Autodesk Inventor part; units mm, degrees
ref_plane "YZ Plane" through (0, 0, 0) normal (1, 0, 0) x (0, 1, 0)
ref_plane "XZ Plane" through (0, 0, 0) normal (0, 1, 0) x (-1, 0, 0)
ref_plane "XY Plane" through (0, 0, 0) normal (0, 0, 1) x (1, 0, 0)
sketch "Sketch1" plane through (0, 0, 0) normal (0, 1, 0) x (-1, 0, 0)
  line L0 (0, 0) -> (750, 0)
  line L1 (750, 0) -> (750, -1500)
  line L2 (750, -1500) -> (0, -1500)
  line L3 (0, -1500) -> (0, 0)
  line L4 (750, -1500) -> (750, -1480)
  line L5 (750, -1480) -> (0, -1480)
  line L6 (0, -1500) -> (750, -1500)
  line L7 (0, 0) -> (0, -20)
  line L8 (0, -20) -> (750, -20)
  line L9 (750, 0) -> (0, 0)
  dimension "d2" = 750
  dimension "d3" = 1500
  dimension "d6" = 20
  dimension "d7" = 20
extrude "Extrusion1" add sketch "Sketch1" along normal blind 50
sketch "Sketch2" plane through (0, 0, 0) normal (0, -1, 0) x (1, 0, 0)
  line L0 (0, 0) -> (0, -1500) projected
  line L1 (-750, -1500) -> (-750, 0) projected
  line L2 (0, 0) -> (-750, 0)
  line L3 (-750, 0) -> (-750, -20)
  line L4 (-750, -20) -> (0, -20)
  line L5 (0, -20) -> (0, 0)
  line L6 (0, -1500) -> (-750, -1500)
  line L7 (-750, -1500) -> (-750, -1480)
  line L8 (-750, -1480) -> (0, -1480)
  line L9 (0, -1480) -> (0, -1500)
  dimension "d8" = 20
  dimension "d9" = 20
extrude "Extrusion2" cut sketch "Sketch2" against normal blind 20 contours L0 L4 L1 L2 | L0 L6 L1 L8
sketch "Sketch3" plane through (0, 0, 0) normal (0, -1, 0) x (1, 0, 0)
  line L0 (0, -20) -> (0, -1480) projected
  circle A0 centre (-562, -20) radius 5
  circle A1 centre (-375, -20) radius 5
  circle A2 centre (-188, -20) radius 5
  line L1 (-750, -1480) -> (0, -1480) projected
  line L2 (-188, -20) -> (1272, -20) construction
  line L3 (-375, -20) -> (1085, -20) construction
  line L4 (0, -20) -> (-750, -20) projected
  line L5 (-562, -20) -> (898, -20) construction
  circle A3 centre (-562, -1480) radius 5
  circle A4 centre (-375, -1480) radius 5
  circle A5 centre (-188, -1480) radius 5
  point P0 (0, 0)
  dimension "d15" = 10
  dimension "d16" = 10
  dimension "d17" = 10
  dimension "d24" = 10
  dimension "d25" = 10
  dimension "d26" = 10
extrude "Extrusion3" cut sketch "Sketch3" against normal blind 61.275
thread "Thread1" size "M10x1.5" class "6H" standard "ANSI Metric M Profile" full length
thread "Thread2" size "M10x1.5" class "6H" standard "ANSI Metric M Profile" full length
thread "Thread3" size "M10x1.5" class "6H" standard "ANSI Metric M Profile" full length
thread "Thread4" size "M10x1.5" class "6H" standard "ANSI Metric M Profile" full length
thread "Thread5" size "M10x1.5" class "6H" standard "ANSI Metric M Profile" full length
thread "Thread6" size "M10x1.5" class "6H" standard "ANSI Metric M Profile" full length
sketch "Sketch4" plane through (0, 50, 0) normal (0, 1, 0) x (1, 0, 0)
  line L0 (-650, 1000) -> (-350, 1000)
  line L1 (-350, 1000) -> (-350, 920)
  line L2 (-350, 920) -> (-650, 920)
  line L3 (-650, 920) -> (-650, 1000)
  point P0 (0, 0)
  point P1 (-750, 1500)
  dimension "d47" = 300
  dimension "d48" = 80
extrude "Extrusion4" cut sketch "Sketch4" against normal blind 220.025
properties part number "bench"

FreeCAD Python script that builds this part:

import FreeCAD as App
import Part
import Sketcher
Q = App.Units.Quantity


def add_polygon(sketch, points):
    """Adds a closed chain of lines whose ends are joined by coincident constraints."""
    first, n = sketch.GeometryCount, len(points)
    for a, b in zip(points, points[1:] + points[:1]):
        sketch.addGeometry(Part.LineSegment(App.Vector(*a, 0), App.Vector(*b, 0)), False)
    for i in range(n):
        sketch.addConstraint(Sketcher.Constraint("Coincident", first + i, 2, first + (i + 1) % n, 1))

doc = App.newDocument("Part")
body = doc.addObject("PartDesign::Body", "Body")

# Sketch on XZ plane
sketch1 = doc.addObject("Sketcher::SketchObject", "Sketch")
body.addObject(sketch1)
sketch1.AttachmentSupport = (doc.XZ_Plane, [""])
sketch1.MapMode = "FlatFace"
add_polygon(sketch1, [(-750, 0), (0, 0), (0, -1500), (-750, -1500)])  # lines 0-3
sketch1.addConstraint(Sketcher.Constraint("Horizontal", 0))
sketch1.addConstraint(Sketcher.Constraint("Vertical", 1))
sketch1.addConstraint(Sketcher.Constraint("Horizontal", 2))
sketch1.addConstraint(Sketcher.Constraint("Vertical", 3))
sketch1.addConstraint(Sketcher.Constraint("Coincident", 0, 2, -1, 1))
sketch1.addConstraint(Sketcher.Constraint("DistanceX", 0, 1, 0, 2, Q("750 mm")))
sketch1.addConstraint(Sketcher.Constraint("DistanceY", 1, 2, 1, 1, Q("1500 mm")))
pad1 = doc.addObject("PartDesign::Pad", "Pad")
body.addObject(pad1)
pad1.Profile = sketch1
pad1.Length = 50
pad1.Reversed = True

# Sketch on XZ plane
sketch2 = doc.addObject("Sketcher::SketchObject", "Sketch001")
body.addObject(sketch2)
sketch2.AttachmentSupport = (doc.XZ_Plane, [""])
sketch2.MapMode = "FlatFace"
add_polygon(sketch2, [(0, -20), (0, 0), (-750, 0), (-750, -20)])  # lines 0-3
add_polygon(sketch2, [(0, -1500), (0, -1480), (-750, -1480), (-750, -1500)])  # lines 4-7
sketch2.addConstraint(Sketcher.Constraint("Vertical", 0))
sketch2.addConstraint(Sketcher.Constraint("Horizontal", 1))
sketch2.addConstraint(Sketcher.Constraint("Vertical", 2))
sketch2.addConstraint(Sketcher.Constraint("Horizontal", 3))
sketch2.addConstraint(Sketcher.Constraint("Vertical", 4))
sketch2.addConstraint(Sketcher.Constraint("Horizontal", 5))
sketch2.addConstraint(Sketcher.Constraint("Vertical", 6))
sketch2.addConstraint(Sketcher.Constraint("Horizontal", 7))
sketch2.addConstraint(Sketcher.Constraint("Coincident", 0, 2, -1, 1))
sketch2.addConstraint(Sketcher.Constraint("PointOnObject", 4, 2, -2))
sketch2.addConstraint(Sketcher.Constraint("Vertical", 2, 2, 5, 2))
sketch2.addConstraint(Sketcher.Constraint("Equal", 2, 4))
sketch2.addConstraint(Sketcher.Constraint("DistanceY", 0, 1, 0, 2, Q("20 mm")))
sketch2.addConstraint(Sketcher.Constraint("DistanceX", 1, 2, 1, 1, Q("750 mm")))
sketch2.addConstraint(Sketcher.Constraint("DistanceY", 4, 2, -1, 1, Q("1480 mm")))
pocket1 = doc.addObject("PartDesign::Pocket", "Pocket")
body.addObject(pocket1)
pocket1.Profile = sketch2
pocket1.Length = 20

# Sketch on XZ plane
sketch3 = doc.addObject("Sketcher::SketchObject", "Sketch002")
body.addObject(sketch3)
sketch3.AttachmentSupport = (doc.XZ_Plane, [""])
sketch3.MapMode = "FlatFace"
sketch3.addGeometry(Part.Circle(App.Vector(-562, -1480, 0), App.Vector(0, 0, 1), 5), False)
sketch3.addGeometry(Part.Circle(App.Vector(-375, -1480, 0), App.Vector(0, 0, 1), 5), False)
sketch3.addGeometry(Part.Circle(App.Vector(-188, -1480, 0), App.Vector(0, 0, 1), 5), False)
sketch3.addGeometry(Part.Circle(App.Vector(-562, -20, 0), App.Vector(0, 0, 1), 5), False)
sketch3.addGeometry(Part.Circle(App.Vector(-375, -20, 0), App.Vector(0, 0, 1), 5), False)
sketch3.addGeometry(Part.Circle(App.Vector(-188, -20, 0), App.Vector(0, 0, 1), 5), False)
sketch3.addConstraint(Sketcher.Constraint("Equal", 0, 1))
sketch3.addConstraint(Sketcher.Constraint("Equal", 1, 2))
sketch3.addConstraint(Sketcher.Constraint("Equal", 2, 3))
sketch3.addConstraint(Sketcher.Constraint("Equal", 3, 4))
sketch3.addConstraint(Sketcher.Constraint("Equal", 4, 5))
sketch3.addConstraint(Sketcher.Constraint("Horizontal", 0, 3, 1, 3))
sketch3.addConstraint(Sketcher.Constraint("Horizontal", 1, 3, 2, 3))
sketch3.addConstraint(Sketcher.Constraint("Horizontal", 3, 3, 4, 3))
sketch3.addConstraint(Sketcher.Constraint("Horizontal", 4, 3, 5, 3))
sketch3.addConstraint(Sketcher.Constraint("Vertical", 0, 3, 3, 3))
sketch3.addConstraint(Sketcher.Constraint("Vertical", 1, 3, 4, 3))
sketch3.addConstraint(Sketcher.Constraint("Vertical", 2, 3, 5, 3))
sketch3.addConstraint(Sketcher.Constraint("Diameter", 0, Q("10 mm")))
sketch3.addConstraint(Sketcher.Constraint("DistanceX", 0, 3, -1, 1, Q("562 mm")))
sketch3.addConstraint(Sketcher.Constraint("DistanceY", 0, 3, -1, 1, Q("1480 mm")))
sketch3.addConstraint(Sketcher.Constraint("DistanceX", 1, 3, -1, 1, Q("375 mm")))
sketch3.addConstraint(Sketcher.Constraint("DistanceX", 2, 3, -1, 1, Q("188 mm")))
sketch3.addConstraint(Sketcher.Constraint("DistanceY", 3, 3, -1, 1, Q("20 mm")))
pocket2 = doc.addObject("PartDesign::Pocket", "Pocket001")
body.addObject(pocket2)
pocket2.Profile = sketch3
pocket2.Length = 61.275

# Sketch on XZ plane
sketch4 = doc.addObject("Sketcher::SketchObject", "Sketch003")
body.addObject(sketch4)
sketch4.AttachmentSupport = (doc.XZ_Plane, [""])
sketch4.MapMode = "FlatFace"
sketch4.AttachmentOffset = App.Placement(App.Vector(0, 0, -50), App.Rotation())
add_polygon(sketch4, [(-350, -1000), (-650, -1000), (-650, -920), (-350, -920)])  # lines 0-3
sketch4.addConstraint(Sketcher.Constraint("Horizontal", 0))
sketch4.addConstraint(Sketcher.Constraint("Vertical", 1))
sketch4.addConstraint(Sketcher.Constraint("Horizontal", 2))
sketch4.addConstraint(Sketcher.Constraint("Vertical", 3))
sketch4.addConstraint(Sketcher.Constraint("DistanceX", 0, 2, 0, 1, Q("300 mm")))
sketch4.addConstraint(Sketcher.Constraint("DistanceY", 1, 1, 1, 2, Q("80 mm")))
sketch4.addConstraint(Sketcher.Constraint("DistanceX", 0, 2, -1, 1, Q("650 mm")))
sketch4.addConstraint(Sketcher.Constraint("DistanceY", 0, 2, -1, 1, Q("1000 mm")))
pocket3 = doc.addObject("PartDesign::Pocket", "Pocket002")
body.addObject(pocket3)
pocket3.Profile = sketch4
pocket3.Length = 220.025
pocket3.Reversed = True

doc.recompute()
